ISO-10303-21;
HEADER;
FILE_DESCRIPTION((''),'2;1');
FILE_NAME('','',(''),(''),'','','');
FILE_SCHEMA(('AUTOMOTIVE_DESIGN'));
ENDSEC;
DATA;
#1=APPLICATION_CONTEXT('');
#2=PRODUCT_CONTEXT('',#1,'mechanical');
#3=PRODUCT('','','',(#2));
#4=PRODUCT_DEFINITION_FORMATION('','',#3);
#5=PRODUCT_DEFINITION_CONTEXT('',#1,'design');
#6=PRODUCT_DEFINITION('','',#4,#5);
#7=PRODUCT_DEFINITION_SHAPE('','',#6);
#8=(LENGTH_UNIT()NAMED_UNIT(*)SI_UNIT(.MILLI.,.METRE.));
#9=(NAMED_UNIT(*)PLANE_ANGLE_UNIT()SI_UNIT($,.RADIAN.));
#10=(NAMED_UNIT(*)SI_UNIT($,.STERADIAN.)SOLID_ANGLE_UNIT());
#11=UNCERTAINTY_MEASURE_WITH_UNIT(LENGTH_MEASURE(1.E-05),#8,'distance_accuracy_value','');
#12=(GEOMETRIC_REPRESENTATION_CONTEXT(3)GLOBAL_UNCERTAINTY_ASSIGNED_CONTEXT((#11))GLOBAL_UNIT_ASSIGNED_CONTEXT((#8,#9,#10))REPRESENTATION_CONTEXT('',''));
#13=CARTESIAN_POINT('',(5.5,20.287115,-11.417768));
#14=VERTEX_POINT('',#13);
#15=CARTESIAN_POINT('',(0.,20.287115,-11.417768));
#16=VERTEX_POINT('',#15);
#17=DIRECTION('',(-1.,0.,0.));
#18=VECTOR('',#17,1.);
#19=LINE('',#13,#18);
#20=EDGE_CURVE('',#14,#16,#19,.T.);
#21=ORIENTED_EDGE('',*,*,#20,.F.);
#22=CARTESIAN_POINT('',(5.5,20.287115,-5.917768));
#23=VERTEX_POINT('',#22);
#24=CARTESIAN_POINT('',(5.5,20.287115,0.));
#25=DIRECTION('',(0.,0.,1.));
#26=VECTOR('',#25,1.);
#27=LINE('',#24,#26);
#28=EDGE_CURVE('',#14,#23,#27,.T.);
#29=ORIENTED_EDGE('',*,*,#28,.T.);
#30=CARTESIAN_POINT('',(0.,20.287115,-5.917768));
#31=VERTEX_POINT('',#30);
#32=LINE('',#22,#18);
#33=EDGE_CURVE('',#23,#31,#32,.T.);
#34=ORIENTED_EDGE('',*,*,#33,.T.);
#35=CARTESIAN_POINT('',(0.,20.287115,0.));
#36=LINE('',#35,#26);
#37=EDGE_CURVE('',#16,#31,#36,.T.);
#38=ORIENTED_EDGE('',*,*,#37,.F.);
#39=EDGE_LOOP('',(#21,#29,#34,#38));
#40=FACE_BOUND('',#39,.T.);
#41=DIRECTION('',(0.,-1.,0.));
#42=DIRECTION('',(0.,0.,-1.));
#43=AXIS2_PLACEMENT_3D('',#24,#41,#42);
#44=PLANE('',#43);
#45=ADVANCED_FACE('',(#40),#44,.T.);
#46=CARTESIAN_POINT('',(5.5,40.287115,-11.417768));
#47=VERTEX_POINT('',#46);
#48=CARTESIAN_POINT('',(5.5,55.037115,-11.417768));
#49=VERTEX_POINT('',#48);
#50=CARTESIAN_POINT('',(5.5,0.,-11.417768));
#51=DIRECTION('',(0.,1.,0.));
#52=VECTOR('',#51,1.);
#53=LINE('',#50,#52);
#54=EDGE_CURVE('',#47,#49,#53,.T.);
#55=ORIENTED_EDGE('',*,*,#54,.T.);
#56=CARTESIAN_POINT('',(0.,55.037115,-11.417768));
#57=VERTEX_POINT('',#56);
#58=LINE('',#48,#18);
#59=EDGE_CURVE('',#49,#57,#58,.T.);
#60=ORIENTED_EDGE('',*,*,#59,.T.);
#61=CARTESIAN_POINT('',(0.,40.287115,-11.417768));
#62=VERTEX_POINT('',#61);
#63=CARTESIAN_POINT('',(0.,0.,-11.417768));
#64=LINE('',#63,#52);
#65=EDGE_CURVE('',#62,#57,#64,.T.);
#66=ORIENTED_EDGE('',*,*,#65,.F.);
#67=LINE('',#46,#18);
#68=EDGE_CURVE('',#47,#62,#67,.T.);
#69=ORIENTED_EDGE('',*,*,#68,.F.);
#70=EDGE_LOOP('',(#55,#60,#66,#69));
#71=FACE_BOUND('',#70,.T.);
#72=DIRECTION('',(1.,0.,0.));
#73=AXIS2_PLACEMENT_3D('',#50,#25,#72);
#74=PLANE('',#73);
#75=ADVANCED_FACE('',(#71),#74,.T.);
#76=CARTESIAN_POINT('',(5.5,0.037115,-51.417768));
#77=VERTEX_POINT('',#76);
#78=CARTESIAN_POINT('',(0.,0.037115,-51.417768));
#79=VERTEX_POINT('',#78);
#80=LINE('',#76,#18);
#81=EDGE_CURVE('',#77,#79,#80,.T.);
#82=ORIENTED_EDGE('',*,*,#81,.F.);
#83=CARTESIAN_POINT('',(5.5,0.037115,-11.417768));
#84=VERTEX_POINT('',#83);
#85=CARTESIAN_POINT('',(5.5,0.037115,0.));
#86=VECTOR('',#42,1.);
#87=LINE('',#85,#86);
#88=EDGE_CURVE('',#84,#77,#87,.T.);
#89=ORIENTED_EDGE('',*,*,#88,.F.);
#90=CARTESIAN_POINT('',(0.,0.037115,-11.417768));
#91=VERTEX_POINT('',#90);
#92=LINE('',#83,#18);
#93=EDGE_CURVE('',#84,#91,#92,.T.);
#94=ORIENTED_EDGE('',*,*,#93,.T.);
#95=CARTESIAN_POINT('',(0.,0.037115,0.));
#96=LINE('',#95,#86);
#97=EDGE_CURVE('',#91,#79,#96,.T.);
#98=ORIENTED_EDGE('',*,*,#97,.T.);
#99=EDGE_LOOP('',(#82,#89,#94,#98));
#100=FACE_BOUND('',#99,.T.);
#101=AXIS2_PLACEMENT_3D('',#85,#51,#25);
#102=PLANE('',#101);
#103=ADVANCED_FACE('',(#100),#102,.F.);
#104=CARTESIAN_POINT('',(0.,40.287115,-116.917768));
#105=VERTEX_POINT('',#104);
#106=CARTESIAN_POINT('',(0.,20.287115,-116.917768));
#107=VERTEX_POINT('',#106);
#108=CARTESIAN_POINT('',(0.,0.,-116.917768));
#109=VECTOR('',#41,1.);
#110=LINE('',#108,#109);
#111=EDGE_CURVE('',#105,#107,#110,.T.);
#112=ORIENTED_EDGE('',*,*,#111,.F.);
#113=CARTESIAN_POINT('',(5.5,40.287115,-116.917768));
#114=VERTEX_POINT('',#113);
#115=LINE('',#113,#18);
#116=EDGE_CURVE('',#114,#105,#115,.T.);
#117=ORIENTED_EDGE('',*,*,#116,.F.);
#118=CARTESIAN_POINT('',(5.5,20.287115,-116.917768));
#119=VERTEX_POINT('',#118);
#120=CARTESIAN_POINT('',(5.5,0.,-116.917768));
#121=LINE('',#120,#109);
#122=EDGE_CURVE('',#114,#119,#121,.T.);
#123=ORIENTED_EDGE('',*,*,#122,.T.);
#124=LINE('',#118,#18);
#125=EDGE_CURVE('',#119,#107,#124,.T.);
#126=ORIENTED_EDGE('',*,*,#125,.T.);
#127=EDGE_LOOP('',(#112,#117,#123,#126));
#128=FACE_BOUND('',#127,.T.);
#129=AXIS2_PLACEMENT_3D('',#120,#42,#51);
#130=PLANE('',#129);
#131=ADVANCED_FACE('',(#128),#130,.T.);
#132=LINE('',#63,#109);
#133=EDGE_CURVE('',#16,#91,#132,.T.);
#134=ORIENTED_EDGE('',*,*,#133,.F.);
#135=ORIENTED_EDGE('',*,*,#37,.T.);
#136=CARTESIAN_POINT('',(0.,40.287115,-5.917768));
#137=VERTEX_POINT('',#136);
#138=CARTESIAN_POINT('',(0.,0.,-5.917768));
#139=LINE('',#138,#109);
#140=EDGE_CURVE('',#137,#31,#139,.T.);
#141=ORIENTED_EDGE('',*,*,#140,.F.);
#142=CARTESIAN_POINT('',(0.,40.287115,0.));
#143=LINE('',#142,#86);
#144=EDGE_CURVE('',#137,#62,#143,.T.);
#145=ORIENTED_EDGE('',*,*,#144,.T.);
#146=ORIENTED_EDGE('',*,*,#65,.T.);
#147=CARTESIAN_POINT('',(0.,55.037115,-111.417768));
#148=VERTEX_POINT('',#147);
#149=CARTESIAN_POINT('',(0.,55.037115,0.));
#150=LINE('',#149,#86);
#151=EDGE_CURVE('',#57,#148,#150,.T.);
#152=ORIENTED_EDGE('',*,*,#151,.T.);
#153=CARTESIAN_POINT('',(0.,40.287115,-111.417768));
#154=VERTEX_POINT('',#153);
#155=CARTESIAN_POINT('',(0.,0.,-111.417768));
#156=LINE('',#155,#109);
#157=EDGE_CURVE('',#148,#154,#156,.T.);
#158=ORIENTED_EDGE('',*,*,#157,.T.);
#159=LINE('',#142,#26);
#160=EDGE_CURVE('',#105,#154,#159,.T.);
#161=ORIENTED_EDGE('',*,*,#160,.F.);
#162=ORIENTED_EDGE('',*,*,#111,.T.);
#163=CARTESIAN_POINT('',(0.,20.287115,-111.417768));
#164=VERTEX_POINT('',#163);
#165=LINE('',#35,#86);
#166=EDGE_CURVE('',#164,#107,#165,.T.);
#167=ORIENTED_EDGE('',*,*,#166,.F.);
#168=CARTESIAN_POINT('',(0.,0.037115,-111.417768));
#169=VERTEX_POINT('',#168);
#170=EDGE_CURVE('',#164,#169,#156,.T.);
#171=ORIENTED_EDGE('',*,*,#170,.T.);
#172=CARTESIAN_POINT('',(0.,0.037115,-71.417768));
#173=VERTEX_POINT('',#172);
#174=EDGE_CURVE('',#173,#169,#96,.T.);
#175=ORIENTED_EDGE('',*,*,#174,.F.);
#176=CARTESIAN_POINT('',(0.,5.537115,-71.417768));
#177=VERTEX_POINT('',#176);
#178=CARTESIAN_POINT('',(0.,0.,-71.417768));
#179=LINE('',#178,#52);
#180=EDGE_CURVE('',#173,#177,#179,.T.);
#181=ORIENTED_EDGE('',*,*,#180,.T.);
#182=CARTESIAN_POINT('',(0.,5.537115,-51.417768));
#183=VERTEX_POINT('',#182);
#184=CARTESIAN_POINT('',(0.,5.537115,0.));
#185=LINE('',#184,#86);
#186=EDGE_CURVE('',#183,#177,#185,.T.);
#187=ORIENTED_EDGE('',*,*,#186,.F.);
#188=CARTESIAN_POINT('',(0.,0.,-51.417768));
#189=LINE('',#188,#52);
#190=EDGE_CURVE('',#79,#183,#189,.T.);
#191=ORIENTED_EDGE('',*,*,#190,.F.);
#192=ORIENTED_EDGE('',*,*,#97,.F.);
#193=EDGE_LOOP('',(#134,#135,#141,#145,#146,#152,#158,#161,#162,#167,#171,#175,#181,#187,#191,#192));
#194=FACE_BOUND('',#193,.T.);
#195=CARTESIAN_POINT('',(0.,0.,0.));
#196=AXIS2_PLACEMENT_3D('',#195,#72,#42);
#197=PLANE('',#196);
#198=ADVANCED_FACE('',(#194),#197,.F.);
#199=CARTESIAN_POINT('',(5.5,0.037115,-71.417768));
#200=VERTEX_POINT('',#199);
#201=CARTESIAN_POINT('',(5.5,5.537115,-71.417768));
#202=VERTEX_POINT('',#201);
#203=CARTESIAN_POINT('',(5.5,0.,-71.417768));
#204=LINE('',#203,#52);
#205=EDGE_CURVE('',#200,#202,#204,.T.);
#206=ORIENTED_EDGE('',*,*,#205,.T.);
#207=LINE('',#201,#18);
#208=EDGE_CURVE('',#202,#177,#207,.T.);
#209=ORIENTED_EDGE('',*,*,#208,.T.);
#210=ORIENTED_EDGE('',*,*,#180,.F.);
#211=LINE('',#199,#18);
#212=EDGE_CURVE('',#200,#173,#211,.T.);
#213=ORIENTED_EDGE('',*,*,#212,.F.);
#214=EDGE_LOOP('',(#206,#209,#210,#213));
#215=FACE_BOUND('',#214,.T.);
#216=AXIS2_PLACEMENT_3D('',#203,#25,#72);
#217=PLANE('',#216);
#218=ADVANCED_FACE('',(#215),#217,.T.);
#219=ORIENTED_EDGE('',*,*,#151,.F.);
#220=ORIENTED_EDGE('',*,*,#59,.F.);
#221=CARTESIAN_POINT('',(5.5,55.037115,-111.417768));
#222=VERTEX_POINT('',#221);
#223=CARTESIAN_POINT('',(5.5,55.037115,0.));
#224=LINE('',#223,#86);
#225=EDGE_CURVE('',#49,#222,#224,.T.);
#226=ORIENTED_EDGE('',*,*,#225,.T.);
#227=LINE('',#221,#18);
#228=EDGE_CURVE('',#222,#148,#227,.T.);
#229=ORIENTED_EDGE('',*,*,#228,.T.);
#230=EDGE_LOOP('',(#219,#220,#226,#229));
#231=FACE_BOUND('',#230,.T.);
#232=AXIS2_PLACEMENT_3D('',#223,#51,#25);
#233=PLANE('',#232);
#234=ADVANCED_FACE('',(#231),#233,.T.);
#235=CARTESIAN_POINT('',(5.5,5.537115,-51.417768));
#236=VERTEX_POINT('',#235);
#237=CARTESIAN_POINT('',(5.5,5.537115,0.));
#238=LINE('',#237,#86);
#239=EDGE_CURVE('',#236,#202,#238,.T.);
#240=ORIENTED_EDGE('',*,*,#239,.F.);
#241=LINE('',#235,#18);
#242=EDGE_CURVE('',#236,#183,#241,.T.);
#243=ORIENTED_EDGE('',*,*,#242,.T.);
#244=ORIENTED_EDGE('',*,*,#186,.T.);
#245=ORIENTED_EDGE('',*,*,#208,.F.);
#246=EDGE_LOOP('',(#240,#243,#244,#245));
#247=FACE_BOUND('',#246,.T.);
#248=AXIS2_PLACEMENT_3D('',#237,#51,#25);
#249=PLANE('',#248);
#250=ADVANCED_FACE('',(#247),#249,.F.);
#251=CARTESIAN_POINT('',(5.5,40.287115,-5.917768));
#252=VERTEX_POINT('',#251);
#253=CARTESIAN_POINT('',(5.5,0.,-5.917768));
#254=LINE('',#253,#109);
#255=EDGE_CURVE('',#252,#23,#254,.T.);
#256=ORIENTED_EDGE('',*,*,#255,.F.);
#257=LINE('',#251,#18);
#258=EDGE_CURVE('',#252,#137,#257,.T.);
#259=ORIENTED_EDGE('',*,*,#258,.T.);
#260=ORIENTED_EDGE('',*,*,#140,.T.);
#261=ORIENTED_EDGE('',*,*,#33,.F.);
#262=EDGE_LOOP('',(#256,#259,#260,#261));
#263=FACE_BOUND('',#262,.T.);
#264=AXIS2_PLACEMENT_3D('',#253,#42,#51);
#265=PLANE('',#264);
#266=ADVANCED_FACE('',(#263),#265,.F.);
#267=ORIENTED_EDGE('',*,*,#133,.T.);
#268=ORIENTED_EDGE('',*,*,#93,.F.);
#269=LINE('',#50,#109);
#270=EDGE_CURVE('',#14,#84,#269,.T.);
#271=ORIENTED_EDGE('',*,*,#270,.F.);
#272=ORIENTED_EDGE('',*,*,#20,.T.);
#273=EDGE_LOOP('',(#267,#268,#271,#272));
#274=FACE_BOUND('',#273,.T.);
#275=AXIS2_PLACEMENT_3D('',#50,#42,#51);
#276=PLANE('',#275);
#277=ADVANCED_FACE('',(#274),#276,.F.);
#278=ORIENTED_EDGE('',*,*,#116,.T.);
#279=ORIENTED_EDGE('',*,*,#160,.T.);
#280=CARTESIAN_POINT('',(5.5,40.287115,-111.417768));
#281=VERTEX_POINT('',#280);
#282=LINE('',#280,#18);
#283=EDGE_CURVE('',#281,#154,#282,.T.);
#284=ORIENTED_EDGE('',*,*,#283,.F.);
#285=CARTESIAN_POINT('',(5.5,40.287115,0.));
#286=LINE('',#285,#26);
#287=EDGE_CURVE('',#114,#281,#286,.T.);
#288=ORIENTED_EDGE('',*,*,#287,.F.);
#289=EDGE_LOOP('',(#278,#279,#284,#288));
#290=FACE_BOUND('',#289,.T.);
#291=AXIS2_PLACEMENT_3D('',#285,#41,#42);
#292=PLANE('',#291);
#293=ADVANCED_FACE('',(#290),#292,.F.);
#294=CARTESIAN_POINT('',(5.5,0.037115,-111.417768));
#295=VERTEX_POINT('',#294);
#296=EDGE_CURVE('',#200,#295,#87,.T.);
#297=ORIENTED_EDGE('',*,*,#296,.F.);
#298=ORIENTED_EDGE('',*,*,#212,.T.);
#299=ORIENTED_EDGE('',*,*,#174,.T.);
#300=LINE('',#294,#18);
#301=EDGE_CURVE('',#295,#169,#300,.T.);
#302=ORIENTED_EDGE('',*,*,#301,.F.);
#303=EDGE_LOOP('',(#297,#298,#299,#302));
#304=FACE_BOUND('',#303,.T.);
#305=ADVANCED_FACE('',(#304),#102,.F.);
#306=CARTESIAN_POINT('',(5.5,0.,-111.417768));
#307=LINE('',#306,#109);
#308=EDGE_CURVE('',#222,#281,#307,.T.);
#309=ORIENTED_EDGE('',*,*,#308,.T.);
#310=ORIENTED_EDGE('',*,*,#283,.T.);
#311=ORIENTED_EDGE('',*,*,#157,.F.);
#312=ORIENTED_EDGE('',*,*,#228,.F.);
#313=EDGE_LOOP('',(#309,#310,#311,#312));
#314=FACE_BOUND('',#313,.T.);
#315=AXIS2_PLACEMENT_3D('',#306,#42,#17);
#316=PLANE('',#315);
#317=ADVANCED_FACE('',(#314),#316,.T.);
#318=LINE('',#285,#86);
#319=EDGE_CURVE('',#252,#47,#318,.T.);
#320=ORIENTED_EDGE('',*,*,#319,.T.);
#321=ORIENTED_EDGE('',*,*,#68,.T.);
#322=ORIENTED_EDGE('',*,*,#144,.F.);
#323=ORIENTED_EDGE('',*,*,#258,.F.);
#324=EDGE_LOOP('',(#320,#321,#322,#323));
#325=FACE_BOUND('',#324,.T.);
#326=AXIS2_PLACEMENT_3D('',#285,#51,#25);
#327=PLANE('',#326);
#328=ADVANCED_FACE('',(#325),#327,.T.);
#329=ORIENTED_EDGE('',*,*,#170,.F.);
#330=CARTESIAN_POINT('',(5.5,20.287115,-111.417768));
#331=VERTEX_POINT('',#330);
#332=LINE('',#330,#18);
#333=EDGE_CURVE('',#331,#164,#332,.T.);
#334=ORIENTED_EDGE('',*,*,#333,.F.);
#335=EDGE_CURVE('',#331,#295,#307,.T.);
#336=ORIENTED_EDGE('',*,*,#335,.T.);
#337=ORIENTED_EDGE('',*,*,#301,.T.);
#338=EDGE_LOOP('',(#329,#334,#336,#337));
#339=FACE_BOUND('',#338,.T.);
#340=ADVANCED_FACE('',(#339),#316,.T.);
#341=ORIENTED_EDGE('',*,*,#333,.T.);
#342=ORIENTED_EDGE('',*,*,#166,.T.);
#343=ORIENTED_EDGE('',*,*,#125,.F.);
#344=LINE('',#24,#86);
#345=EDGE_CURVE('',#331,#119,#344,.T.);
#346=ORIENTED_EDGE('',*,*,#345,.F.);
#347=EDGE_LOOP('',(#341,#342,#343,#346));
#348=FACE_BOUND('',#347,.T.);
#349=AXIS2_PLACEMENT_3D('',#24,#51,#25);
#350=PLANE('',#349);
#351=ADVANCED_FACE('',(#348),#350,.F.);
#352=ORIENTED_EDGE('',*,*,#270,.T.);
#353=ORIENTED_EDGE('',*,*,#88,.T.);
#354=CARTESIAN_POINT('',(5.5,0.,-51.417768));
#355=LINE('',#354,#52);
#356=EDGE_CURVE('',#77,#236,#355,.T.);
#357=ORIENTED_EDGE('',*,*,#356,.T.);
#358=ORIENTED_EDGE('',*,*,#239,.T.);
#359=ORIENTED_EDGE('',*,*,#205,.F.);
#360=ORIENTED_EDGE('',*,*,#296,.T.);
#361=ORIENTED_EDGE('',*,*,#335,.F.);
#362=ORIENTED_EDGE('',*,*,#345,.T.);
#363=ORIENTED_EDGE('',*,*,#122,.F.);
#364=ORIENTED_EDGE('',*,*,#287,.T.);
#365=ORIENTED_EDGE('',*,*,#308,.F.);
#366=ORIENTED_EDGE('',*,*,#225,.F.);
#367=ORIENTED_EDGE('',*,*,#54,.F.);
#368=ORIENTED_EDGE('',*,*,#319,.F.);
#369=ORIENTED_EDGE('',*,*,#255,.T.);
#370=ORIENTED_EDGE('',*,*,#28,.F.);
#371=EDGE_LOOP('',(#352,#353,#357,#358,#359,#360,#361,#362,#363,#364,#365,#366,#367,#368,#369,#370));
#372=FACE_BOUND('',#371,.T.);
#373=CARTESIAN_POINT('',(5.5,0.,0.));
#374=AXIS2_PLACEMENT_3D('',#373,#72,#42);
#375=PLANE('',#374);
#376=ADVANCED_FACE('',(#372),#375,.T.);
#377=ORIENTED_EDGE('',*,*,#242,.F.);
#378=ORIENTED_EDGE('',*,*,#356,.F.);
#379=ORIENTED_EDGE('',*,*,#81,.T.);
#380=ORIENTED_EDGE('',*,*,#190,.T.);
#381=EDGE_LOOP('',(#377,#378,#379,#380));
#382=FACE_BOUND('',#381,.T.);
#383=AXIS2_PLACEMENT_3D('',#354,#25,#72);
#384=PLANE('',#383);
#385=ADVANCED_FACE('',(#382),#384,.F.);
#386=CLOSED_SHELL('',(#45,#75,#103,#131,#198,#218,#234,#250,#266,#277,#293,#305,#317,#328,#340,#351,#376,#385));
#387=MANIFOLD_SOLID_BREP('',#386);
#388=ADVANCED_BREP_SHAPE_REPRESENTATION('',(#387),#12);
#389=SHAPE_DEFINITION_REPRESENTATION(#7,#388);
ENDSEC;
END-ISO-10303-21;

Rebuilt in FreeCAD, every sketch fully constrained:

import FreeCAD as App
import Part
import Sketcher

V = App.Vector
Q = App.Units.Quantity


def add_polygon(sketch, points):
    """Adds a closed chain of lines whose ends are joined by coincident constraints."""
    first, n = sketch.GeometryCount, len(points)
    for a, b in zip(points, points[1:] + points[:1]):
        sketch.addGeometry(Part.LineSegment(App.Vector(*a, 0), App.Vector(*b, 0)), False)
    for i in range(n):
        sketch.addConstraint(Sketcher.Constraint("Coincident", first + i, 2, first + (i + 1) % n, 1))

doc = App.newDocument("Part")
body = doc.addObject("PartDesign::Body", "Body")

# Sketch on YZ plane
sketch1 = body.newObject("Sketcher::SketchObject", "Sketch")
sketch1.AttachmentSupport = (doc.getObject("YZ_Plane"), [""])
sketch1.MapMode = "FlatFace"
add_polygon(sketch1, [(0, -51), (6, -51), (6, -71), (0, -71), (0, -111), (20, -111), (20, -117), (40, -117), (40, -111), (55, -111), (55, -11), (40, -11), (40, -6), (20, -6), (20, -11), (0, -11)])  # lines 0-15
sketch1.addConstraint([
    Sketcher.Constraint("Horizontal", 0),
    Sketcher.Constraint("Vertical", 1),
    Sketcher.Constraint("Horizontal", 2),
    Sketcher.Constraint("Vertical", 3),
    Sketcher.Constraint("Horizontal", 4),
    Sketcher.Constraint("Vertical", 5),
    Sketcher.Constraint("Horizontal", 6),
    Sketcher.Constraint("Vertical", 7),
    Sketcher.Constraint("Horizontal", 8),
    Sketcher.Constraint("Vertical", 9),
    Sketcher.Constraint("Horizontal", 10),
    Sketcher.Constraint("Vertical", 11),
    Sketcher.Constraint("Horizontal", 12),
    Sketcher.Constraint("Vertical", 13),
    Sketcher.Constraint("Horizontal", 14),
    Sketcher.Constraint("Vertical", 15),
    Sketcher.Constraint("Horizontal", 4, 2, 7, 2),
    Sketcher.Constraint("Horizontal", 10, 2, 13, 2),
    Sketcher.Constraint("Vertical", 7, 2, 10, 2),
    Sketcher.Constraint("Vertical", 5, 2, 12, 2),
    Sketcher.Constraint("Vertical", 3, 2, 14, 2),
    Sketcher.Constraint("Equal", 12, 1),
    Sketcher.Constraint("Equal", 2, 5),
    Sketcher.Constraint("Equal", 7, 11),
    Sketcher.Constraint("Equal", 3, 15),
    Sketcher.Constraint("DistanceX", 6, 1, 6, 2, Q("20 mm")),
    Sketcher.Constraint("DistanceY", 3, 2, 3, 1, Q("40 mm")),
    Sketcher.Constraint("DistanceX", 0, 1, 0, 2, Q("5.5 mm")),
    Sketcher.Constraint("DistanceX", 3, 2, 8, 2, Q("55 mm")),
    Sketcher.Constraint("DistanceX", 4, 1, 4, 2, Q("20.25 mm")),
    Sketcher.Constraint("DistanceY", 0, 2, -1, 1, Q("51.417768 mm")),
    Sketcher.Constraint("DistanceX", -1, 1, 0, 2, Q("5.537115 mm")),
])
pad1 = body.newObject("PartDesign::Pad", "Pad")
pad1.Profile = sketch1
pad1.Length = 5.5

doc.recompute()
